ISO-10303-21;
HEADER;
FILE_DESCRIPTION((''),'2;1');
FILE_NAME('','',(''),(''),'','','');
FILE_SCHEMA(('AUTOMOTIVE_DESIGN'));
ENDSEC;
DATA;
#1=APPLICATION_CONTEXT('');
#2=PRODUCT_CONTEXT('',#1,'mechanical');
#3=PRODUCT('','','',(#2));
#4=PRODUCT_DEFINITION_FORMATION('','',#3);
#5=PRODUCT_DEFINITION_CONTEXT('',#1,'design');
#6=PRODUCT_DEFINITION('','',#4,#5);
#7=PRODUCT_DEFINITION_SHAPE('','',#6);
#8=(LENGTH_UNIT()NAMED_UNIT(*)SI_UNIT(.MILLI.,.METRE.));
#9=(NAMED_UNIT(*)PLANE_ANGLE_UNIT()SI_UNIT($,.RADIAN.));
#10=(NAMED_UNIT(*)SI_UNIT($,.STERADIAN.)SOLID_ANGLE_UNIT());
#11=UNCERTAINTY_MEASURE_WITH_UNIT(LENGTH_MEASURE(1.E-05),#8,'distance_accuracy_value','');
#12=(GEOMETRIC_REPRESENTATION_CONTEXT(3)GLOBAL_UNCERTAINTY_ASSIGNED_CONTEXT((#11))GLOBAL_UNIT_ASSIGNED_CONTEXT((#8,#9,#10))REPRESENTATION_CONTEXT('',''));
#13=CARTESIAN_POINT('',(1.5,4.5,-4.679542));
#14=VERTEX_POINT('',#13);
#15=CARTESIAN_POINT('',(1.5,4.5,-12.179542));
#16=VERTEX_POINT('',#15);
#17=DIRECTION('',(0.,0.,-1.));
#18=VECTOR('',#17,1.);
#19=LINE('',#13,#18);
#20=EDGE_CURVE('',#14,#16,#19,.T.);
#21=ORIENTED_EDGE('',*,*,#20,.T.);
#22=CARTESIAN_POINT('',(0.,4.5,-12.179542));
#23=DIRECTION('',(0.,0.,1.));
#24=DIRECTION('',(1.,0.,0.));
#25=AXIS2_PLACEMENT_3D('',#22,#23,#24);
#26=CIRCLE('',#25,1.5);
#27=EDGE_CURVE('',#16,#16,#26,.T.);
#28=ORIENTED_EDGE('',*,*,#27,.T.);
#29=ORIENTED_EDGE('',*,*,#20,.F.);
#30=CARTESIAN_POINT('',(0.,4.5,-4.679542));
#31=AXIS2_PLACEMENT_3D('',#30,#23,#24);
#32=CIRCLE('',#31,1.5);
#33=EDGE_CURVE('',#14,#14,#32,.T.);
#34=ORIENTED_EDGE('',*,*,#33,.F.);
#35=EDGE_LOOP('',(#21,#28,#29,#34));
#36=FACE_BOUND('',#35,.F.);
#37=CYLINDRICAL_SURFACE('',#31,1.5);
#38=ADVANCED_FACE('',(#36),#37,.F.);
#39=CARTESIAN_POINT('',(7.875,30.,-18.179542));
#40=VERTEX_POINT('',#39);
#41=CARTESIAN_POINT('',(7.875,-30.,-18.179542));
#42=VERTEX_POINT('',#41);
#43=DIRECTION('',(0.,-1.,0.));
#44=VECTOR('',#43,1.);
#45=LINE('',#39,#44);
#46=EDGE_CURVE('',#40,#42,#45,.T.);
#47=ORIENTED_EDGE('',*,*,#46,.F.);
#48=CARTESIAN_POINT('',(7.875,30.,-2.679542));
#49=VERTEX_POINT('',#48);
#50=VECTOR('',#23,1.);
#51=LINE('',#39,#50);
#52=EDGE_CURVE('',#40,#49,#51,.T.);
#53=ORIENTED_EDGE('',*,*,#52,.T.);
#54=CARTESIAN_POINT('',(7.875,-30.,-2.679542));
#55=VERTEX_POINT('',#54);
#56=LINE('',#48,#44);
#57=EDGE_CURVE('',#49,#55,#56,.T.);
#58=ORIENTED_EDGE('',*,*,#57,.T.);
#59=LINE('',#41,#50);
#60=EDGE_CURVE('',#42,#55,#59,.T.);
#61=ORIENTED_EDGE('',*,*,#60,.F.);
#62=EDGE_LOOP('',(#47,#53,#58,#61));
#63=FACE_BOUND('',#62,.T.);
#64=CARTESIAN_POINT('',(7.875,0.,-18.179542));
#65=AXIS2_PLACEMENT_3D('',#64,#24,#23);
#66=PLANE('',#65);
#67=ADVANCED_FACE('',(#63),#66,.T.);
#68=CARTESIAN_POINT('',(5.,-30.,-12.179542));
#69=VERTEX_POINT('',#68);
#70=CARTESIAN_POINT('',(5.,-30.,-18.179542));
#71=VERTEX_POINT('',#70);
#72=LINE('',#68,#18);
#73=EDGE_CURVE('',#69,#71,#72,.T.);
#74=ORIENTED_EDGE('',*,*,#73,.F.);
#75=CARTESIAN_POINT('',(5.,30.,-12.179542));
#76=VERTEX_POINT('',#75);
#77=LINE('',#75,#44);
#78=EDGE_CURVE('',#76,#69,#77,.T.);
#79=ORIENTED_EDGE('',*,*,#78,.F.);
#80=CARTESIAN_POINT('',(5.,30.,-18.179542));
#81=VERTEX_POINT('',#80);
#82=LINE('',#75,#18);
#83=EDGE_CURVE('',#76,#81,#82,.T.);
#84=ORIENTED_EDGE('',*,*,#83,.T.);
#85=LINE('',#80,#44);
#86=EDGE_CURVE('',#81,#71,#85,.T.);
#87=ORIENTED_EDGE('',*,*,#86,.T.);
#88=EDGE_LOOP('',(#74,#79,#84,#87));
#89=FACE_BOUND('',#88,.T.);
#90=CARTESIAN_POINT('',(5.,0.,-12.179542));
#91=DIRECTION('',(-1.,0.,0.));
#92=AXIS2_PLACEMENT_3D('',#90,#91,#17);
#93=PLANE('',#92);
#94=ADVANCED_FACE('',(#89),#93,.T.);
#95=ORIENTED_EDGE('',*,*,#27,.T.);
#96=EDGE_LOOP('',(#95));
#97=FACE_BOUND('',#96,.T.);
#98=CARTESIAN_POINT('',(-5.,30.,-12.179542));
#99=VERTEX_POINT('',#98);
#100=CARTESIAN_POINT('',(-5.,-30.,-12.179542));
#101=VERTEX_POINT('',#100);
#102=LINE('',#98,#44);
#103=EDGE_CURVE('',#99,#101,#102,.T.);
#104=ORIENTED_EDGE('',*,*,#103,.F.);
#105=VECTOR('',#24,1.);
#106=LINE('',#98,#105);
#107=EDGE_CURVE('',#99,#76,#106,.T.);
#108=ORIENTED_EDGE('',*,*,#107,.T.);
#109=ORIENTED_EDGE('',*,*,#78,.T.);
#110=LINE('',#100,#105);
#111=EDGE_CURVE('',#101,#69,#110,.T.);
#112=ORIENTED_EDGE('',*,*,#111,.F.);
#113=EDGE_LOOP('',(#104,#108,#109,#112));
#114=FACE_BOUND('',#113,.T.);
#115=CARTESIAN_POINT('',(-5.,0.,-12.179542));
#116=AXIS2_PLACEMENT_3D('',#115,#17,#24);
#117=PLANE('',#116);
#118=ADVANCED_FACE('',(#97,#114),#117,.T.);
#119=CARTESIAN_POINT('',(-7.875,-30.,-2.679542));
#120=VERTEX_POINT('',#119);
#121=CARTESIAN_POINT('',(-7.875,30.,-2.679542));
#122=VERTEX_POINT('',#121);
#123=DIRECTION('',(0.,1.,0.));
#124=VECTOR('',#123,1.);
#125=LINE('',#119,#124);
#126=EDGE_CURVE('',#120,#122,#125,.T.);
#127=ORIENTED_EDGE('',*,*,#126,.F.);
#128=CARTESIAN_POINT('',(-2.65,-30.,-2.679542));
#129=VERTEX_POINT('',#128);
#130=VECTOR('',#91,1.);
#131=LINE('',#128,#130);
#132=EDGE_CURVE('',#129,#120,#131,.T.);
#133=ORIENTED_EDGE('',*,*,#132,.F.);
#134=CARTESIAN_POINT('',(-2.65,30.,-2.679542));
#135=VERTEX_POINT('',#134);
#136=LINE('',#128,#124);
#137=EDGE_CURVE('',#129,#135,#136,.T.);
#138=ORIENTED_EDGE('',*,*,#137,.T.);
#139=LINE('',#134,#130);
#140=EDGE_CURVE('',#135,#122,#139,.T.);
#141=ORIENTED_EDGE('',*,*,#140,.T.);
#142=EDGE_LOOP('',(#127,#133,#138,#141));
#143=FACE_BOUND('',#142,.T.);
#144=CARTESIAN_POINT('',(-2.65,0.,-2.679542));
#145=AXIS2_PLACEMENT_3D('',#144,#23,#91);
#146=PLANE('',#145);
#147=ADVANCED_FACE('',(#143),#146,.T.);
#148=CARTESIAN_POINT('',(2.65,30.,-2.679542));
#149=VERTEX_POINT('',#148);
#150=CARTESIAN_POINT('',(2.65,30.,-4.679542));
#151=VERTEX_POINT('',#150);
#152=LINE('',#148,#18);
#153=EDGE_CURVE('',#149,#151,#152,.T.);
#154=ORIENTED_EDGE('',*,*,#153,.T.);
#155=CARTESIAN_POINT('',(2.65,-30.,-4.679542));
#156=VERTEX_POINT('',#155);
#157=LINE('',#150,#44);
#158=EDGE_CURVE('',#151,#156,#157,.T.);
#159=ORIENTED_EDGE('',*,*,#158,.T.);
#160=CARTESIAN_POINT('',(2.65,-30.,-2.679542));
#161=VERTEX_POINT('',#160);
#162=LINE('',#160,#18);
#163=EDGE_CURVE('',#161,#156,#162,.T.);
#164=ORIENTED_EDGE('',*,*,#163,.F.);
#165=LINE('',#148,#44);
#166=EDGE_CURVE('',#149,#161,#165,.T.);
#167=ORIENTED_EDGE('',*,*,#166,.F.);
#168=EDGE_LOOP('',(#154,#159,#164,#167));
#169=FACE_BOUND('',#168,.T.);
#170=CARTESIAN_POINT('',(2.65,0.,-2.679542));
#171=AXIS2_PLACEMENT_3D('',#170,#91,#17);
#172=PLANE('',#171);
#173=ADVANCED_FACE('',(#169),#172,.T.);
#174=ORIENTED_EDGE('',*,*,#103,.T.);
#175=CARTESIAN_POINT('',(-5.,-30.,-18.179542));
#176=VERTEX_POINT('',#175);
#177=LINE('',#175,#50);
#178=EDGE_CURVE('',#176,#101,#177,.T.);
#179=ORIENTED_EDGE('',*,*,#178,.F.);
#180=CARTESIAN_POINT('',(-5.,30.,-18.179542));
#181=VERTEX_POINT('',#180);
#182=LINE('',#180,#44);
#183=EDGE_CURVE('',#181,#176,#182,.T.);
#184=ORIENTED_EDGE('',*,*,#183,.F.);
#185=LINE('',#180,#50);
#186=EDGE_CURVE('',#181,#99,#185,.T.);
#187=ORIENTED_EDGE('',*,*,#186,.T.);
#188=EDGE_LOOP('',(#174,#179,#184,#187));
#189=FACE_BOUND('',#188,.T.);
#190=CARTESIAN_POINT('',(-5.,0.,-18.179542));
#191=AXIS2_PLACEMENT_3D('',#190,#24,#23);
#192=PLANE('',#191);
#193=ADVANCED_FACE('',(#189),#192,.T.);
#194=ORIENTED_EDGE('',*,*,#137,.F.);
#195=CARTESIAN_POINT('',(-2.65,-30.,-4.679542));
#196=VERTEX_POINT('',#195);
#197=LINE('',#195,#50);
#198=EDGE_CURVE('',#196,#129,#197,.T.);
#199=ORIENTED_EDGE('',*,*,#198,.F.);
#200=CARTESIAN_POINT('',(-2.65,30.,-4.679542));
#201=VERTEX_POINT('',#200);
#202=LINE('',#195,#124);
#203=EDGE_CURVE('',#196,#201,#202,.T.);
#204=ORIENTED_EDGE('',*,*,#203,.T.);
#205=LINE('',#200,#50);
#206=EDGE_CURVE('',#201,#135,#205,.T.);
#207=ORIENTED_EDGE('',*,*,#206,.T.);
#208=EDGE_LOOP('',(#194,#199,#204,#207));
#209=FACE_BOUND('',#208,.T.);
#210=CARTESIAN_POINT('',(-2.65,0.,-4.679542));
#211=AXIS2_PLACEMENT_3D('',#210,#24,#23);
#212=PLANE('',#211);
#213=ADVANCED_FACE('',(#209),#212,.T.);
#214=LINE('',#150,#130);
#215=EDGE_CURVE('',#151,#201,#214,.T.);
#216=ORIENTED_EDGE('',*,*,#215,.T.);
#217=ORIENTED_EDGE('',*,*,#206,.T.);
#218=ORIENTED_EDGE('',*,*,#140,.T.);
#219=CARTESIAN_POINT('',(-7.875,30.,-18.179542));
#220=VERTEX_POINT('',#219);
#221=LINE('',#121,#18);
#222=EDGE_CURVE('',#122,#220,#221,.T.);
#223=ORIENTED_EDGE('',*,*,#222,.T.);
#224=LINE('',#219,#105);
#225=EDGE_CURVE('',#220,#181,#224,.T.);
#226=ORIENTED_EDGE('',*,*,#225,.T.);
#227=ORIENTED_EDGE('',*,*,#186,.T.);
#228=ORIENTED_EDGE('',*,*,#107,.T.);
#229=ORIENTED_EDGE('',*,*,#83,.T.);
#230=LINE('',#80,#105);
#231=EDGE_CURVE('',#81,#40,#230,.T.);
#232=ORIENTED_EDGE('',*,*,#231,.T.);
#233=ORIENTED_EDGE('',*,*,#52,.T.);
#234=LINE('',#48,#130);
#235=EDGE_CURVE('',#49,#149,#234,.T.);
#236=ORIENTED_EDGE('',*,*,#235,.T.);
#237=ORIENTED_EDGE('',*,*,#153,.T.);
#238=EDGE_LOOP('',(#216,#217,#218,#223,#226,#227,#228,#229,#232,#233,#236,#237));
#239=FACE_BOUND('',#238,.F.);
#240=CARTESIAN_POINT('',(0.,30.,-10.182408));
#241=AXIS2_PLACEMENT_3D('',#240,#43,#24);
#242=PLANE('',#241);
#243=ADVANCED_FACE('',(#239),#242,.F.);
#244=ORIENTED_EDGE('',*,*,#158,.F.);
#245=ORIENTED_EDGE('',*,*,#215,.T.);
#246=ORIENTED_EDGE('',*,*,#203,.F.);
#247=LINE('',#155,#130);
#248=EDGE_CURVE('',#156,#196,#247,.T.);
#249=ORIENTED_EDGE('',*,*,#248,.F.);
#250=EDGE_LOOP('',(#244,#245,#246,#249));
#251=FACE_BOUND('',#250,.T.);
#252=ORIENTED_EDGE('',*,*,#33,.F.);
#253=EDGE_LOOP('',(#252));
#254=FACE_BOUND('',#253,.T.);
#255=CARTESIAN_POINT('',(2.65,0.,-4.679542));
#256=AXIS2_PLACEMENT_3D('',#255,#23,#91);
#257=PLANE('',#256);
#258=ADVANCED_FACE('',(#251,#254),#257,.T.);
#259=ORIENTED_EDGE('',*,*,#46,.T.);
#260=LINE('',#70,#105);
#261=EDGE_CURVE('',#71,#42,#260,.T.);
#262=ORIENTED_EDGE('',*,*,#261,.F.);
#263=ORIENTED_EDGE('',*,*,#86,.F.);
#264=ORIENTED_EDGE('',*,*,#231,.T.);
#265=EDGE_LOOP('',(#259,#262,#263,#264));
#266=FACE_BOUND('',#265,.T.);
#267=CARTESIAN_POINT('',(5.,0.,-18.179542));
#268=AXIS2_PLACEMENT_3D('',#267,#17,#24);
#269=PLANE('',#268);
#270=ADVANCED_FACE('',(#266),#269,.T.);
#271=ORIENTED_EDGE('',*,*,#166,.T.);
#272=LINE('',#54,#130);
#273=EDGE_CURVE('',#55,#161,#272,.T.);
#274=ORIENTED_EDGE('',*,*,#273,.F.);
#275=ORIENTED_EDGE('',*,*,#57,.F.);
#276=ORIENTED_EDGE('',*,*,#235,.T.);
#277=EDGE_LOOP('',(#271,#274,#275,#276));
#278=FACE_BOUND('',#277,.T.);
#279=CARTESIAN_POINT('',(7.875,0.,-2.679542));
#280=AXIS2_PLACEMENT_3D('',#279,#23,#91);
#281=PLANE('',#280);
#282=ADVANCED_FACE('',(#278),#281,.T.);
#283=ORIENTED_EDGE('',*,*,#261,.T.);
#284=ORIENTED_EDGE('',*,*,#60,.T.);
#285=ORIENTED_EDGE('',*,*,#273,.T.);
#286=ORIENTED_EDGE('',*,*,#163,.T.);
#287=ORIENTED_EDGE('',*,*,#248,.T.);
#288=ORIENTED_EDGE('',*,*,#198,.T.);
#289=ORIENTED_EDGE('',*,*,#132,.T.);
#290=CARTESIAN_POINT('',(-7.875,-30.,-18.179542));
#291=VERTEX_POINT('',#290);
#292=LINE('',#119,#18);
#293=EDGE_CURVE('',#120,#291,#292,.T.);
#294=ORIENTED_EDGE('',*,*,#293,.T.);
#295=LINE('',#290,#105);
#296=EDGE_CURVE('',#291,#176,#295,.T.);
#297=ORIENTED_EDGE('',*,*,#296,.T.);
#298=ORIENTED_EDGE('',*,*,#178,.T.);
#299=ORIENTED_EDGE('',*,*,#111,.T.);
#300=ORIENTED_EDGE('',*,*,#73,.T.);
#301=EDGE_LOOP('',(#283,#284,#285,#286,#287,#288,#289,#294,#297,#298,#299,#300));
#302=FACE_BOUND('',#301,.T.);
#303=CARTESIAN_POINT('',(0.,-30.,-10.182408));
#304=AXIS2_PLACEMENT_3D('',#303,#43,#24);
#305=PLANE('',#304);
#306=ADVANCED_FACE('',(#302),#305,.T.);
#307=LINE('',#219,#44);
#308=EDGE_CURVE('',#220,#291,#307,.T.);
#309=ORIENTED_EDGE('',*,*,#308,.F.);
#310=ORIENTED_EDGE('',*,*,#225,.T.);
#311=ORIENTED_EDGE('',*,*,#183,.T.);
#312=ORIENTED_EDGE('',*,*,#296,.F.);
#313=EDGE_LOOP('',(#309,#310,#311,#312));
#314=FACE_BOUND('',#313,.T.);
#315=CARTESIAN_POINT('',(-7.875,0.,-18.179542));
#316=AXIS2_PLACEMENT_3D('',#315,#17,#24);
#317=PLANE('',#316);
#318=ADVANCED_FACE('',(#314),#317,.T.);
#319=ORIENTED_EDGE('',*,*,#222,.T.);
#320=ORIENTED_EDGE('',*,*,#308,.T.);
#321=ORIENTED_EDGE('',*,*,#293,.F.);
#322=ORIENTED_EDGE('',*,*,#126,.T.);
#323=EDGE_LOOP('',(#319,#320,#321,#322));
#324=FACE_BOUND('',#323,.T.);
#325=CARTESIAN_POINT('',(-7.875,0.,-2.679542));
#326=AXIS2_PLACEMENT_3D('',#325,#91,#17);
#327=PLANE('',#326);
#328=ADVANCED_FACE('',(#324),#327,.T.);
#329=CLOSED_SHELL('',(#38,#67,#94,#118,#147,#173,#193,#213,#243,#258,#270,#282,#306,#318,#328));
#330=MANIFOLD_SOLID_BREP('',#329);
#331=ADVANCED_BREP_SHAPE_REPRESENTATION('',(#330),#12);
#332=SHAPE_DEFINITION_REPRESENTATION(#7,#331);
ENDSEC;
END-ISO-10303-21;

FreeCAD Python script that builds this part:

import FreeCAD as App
import Part
import Sketcher

doc = App.newDocument("Part")
body = doc.addObject("PartDesign::Body", "Body")

# Sketch on XZ plane
sketch1 = body.newObject("Sketcher::SketchObject", "Sketch")
sketch1.AttachmentSupport = (doc.getObject("XZ_Plane"), [""])
sketch1.MapMode = "FlatFace"
sketch1.addGeometry([
    Part.LineSegment(App.Vector(-7.9, -2.7, 0), App.Vector(-7.9, -18.2, 0)),  # 0
    Part.LineSegment(App.Vector(-7.9, -18.2, 0), App.Vector(-5, -18.2, 0)),  # 1
    Part.LineSegment(App.Vector(-5, -18.2, 0), App.Vector(-5, -12.2, 0)),  # 2
    Part.LineSegment(App.Vector(-5, -12.2, 0), App.Vector(5, -12.2, 0)),  # 3
    Part.LineSegment(App.Vector(5, -12.2, 0), App.Vector(5, -18.2, 0)),  # 4
    Part.LineSegment(App.Vector(5, -18.2, 0), App.Vector(7.9, -18.2, 0)),  # 5
    Part.LineSegment(App.Vector(7.9, -18.2, 0), App.Vector(7.9, -2.7, 0)),  # 6
    Part.LineSegment(App.Vector(7.9, -2.7, 0), App.Vector(2.6, -2.7, 0)),  # 7
    Part.LineSegment(App.Vector(2.6, -2.7, 0), App.Vector(2.6, -4.7, 0)),  # 8
    Part.LineSegment(App.Vector(2.6, -4.7, 0), App.Vector(-2.6, -4.7, 0)),  # 9
    Part.LineSegment(App.Vector(-2.6, -4.7, 0), App.Vector(-2.6, -2.7, 0)),  # 10
    Part.LineSegment(App.Vector(-2.6, -2.7, 0), App.Vector(-7.9, -2.7, 0)),  # 11
], False)
sketch1.addConstraint([
    Sketcher.Constraint("Coincident", 0, 2, 1, 1),
    Sketcher.Constraint("Coincident", 1, 2, 2, 1),
    Sketcher.Constraint("Coincident", 2, 2, 3, 1),
    Sketcher.Constraint("Coincident", 3, 2, 4, 1),
    Sketcher.Constraint("Coincident", 4, 2, 5, 1),
    Sketcher.Constraint("Coincident", 5, 2, 6, 1),
    Sketcher.Constraint("Coincident", 6, 2, 7, 1),
    Sketcher.Constraint("Coincident", 7, 2, 8, 1),
    Sketcher.Constraint("Coincident", 8, 2, 9, 1),
    Sketcher.Constraint("Coincident", 9, 2, 10, 1),
    Sketcher.Constraint("Coincident", 10, 2, 11, 1),
    Sketcher.Constraint("Coincident", 11, 2, 0, 1),
    Sketcher.Constraint("Vertical", 0),
    Sketcher.Constraint("Horizontal", 1),
    Sketcher.Constraint("Vertical", 2),
    Sketcher.Constraint("Horizontal", 3),
    Sketcher.Constraint("Vertical", 4),
    Sketcher.Constraint("Horizontal", 5),
    Sketcher.Constraint("Vertical", 6),
    Sketcher.Constraint("Horizontal", 7),
    Sketcher.Constraint("Vertical", 8),
    Sketcher.Constraint("Horizontal", 9),
    Sketcher.Constraint("Vertical", 10),
    Sketcher.Constraint("Horizontal", 11),
    Sketcher.Constraint("Symmetric", 1, 2, 4, 2, -2),
    Sketcher.Constraint("Symmetric", 7, 2, 10, 2, -2),
    Sketcher.Constraint("Equal", 1, 5),
    Sketcher.Constraint("DistanceX", 3, 1, 3, 2, 10.0),
    Sketcher.Constraint("DistanceY", 2, 1, 2, 2, 6.0),
    Sketcher.Constraint("DistanceY", 8, 2, 8, 1, 2.0),
    Sketcher.Constraint("DistanceX", 9, 2, 9, 1, 5.3),
    Sketcher.Constraint("DistanceY", 0, 2, 0, 1, 15.5),
    Sketcher.Constraint("DistanceX", 1, 1, 1, 2, 2.875),
    Sketcher.Constraint("DistanceY", 8, 2, -1, 1, 4.679542),
])
pad1 = body.newObject("PartDesign::Pad", "Pad")
pad1.Profile = sketch1
pad1.Length = 60
pad1.Midplane = True

# Sketch on XY plane
sketch2 = body.newObject("Sketcher::SketchObject", "Sketch001")
sketch2.AttachmentSupport = (doc.getObject("XY_Plane"), [""])
sketch2.MapMode = "FlatFace"
sketch2.AttachmentOffset = App.Placement(App.Vector(0, 0, -4.679542), App.Rotation())
sketch2.addGeometry(Part.Circle(App.Vector(0, 4.5, 0), App.Vector(0, 0, 1), 1.5), False)
sketch2.addConstraint([
    Sketcher.Constraint("PointOnObject", 0, 3, -2),
    Sketcher.Constraint("Diameter", 0, 3.0),
    Sketcher.Constraint("DistanceY", -1, 1, 0, 3, 4.5),
])
pocket1 = body.newObject("PartDesign::Pocket", "Pocket")
pocket1.Profile = sketch2
pocket1.Length = 25

doc.recompute()
